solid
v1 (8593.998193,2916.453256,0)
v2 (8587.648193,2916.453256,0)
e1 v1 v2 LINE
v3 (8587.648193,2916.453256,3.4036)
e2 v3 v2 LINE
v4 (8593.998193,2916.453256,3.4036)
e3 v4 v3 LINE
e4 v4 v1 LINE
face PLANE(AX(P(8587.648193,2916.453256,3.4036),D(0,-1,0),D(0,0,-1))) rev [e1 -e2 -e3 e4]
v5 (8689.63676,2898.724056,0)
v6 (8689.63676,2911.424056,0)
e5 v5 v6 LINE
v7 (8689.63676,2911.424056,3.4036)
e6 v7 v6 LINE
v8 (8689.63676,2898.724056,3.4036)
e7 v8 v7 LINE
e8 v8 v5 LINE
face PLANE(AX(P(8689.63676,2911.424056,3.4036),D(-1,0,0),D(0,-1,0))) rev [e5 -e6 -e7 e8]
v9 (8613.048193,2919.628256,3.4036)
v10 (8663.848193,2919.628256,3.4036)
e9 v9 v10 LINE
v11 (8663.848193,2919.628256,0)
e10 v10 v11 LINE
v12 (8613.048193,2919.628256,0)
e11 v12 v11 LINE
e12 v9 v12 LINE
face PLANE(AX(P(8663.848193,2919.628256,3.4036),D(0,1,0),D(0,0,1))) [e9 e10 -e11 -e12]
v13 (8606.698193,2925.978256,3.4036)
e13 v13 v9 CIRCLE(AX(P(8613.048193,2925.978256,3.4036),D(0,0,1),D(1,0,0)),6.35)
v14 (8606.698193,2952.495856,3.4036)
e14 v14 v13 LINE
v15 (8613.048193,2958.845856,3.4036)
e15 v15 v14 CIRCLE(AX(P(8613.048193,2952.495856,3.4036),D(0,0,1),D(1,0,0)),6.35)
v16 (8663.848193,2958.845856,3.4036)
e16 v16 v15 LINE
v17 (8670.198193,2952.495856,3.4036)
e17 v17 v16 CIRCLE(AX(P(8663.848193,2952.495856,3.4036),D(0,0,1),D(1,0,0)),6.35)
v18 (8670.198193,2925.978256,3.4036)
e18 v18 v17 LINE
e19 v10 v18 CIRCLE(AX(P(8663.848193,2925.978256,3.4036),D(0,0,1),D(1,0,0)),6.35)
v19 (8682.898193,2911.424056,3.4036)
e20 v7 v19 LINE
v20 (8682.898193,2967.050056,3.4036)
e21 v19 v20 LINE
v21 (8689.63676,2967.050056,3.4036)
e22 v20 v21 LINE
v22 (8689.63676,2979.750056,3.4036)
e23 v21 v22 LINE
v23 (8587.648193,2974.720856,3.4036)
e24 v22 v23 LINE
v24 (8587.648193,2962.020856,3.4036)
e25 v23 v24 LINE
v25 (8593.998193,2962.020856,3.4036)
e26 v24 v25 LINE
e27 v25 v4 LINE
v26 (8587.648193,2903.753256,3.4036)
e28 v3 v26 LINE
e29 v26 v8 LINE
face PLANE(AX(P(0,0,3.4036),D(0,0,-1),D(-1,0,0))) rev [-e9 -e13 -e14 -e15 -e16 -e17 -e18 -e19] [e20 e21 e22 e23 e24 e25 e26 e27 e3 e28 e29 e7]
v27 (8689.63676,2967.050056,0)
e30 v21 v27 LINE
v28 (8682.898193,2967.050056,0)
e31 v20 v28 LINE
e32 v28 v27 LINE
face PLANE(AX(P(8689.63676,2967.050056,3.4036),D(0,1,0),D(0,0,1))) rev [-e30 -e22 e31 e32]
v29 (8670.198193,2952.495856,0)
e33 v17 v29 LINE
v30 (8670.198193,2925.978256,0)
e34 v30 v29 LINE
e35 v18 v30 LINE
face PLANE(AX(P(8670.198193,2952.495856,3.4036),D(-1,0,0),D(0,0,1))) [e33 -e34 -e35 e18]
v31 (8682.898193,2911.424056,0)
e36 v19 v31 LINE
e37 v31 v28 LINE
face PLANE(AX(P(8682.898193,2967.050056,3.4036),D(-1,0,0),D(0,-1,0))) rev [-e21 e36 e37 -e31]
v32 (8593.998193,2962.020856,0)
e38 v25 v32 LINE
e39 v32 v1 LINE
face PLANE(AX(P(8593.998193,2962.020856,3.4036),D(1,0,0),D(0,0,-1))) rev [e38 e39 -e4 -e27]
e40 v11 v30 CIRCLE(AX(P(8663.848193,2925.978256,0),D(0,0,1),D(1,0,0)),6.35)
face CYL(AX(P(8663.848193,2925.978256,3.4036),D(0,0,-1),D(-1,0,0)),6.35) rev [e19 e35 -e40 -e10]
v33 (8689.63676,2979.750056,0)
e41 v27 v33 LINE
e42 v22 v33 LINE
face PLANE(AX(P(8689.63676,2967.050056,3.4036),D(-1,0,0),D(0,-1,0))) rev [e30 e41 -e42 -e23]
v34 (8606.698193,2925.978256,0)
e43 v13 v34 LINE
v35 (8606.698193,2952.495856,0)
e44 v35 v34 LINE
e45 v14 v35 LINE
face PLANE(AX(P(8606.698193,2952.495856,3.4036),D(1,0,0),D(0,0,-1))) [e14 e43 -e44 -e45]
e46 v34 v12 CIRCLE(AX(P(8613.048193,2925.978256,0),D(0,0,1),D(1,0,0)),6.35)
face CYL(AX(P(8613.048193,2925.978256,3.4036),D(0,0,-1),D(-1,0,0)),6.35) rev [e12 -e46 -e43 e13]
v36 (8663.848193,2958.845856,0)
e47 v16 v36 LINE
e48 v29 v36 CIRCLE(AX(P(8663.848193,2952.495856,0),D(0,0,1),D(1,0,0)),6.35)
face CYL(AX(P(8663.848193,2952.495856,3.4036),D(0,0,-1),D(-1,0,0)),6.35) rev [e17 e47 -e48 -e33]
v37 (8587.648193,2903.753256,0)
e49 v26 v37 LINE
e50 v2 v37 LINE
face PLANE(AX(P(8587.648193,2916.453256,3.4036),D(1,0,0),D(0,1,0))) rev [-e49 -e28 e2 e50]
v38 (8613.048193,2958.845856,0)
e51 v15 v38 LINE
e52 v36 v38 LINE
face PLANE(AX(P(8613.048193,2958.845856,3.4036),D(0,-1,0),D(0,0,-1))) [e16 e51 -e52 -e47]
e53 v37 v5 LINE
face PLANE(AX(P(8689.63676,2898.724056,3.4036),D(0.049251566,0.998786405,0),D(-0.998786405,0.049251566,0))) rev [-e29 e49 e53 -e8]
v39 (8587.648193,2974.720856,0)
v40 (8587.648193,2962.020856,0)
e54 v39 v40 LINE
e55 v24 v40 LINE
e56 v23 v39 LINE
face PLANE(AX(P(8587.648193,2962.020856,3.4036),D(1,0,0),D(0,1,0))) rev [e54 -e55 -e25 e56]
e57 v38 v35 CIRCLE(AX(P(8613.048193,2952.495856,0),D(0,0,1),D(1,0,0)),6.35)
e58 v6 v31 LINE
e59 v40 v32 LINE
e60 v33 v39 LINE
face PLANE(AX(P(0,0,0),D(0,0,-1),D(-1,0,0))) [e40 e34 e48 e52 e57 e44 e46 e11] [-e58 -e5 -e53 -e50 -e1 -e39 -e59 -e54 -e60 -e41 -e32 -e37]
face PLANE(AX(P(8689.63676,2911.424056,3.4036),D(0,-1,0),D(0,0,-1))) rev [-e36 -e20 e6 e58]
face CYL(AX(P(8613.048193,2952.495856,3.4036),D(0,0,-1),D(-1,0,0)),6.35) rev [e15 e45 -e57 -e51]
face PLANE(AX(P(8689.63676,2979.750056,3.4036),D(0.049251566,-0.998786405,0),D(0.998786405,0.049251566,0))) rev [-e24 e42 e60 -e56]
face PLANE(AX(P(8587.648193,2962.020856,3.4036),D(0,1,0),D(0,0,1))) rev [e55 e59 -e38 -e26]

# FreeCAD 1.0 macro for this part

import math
import FreeCAD as App
import Part
import Sketcher

V = App.Vector
Q = App.Units.Quantity


def add_polygon(sketch, points):
    """Adds a closed chain of lines whose ends are joined by coincident constraints."""
    first, n = sketch.GeometryCount, len(points)
    for a, b in zip(points, points[1:] + points[:1]):
        sketch.addGeometry(Part.LineSegment(App.Vector(*a, 0), App.Vector(*b, 0)), False)
    for i in range(n):
        sketch.addConstraint(Sketcher.Constraint("Coincident", first + i, 2, first + (i + 1) % n, 1))

doc = App.newDocument("Part")
body = doc.addObject("PartDesign::Body", "Body")

sketch1 = body.newObject("Sketcher::SketchObject", "Sketch")
sketch1.AttachmentSupport = (doc.getObject("XY_Plane"), [""])
sketch1.MapMode = "FlatFace"
add_polygon(sketch1, [(8689.63676, 2979.750056), (8587.648193, 2974.720856), (8587.648193, 2962.020856), (8593.998193, 2962.020856), (8593.998193, 2916.453256), (8587.648193, 2916.453256), (8587.648193, 2903.753256), (8689.63676, 2898.724056), (8689.63676, 2911.424056), (8682.898193, 2911.424056), (8682.898193, 2967.050056), (8689.63676, 2967.050056)])
sketch1.addGeometry(Part.LineSegment(V(8606.698193, 2925.978256, 0), V(8606.698193, 2952.495856, 0)), False)
sketch1.addGeometry(Part.ArcOfCircle(Part.Circle(V(8613.048193, 2952.495856, 0), V(0, 0, 1), 6.35), math.radians(90), math.radians(180)), False)
sketch1.addGeometry(Part.LineSegment(V(8613.048193, 2958.845856, 0), V(8663.848193, 2958.845856, 0)), False)
sketch1.addGeometry(Part.ArcOfCircle(Part.Circle(V(8663.848193, 2952.495856, 0), V(0, 0, 1), 6.35), math.radians(0), math.radians(90)), False)
sketch1.addGeometry(Part.LineSegment(V(8670.198193, 2952.495856, 0), V(8670.198193, 2925.978256, 0)), False)
sketch1.addGeometry(Part.ArcOfCircle(Part.Circle(V(8663.848193, 2925.978256, 0), V(0, 0, 1), 6.35), math.radians(-90), math.radians(0)), False)
sketch1.addGeometry(Part.LineSegment(V(8663.848193, 2919.628256, 0), V(8613.048193, 2919.628256, 0)), False)
sketch1.addGeometry(Part.ArcOfCircle(Part.Circle(V(8613.048193, 2925.978256, 0), V(0, 0, 1), 6.35), math.radians(-180), math.radians(-90)), False)
sketch1.addConstraint(Sketcher.Constraint("Tangent", 12, 2, 13, 2))
sketch1.addConstraint(Sketcher.Constraint("Tangent", 13, 1, 14, 1))
sketch1.addConstraint(Sketcher.Constraint("Tangent", 14, 2, 15, 2))
sketch1.addConstraint(Sketcher.Constraint("Tangent", 15, 1, 16, 1))
sketch1.addConstraint(Sketcher.Constraint("Tangent", 16, 2, 17, 2))
sketch1.addConstraint(Sketcher.Constraint("Tangent", 17, 1, 18, 1))
sketch1.addConstraint(Sketcher.Constraint("Tangent", 18, 2, 19, 2))
sketch1.addConstraint(Sketcher.Constraint("Tangent", 19, 1, 12, 1))
sketch1.addConstraint(Sketcher.Constraint("Vertical", 1))
sketch1.addConstraint(Sketcher.Constraint("Horizontal", 2))
sketch1.addConstraint(Sketcher.Constraint("Vertical", 3))
sketch1.addConstraint(Sketcher.Constraint("Horizontal", 4))
sketch1.addConstraint(Sketcher.Constraint("Vertical", 5))
sketch1.addConstraint(Sketcher.Constraint("Vertical", 7))
sketch1.addConstraint(Sketcher.Constraint("Horizontal", 8))
sketch1.addConstraint(Sketcher.Constraint("Vertical", 9))
sketch1.addConstraint(Sketcher.Constraint("Horizontal", 10))
sketch1.addConstraint(Sketcher.Constraint("Vertical", 11))
sketch1.addConstraint(Sketcher.Constraint("Vertical", 12))
sketch1.addConstraint(Sketcher.Constraint("Horizontal", 14))
sketch1.addConstraint(Sketcher.Constraint("Vertical", 16))
sketch1.addConstraint(Sketcher.Constraint("Horizontal", 18))
sketch1.addConstraint(Sketcher.Constraint("Equal", 13, 15))
sketch1.addConstraint(Sketcher.Constraint("Equal", 15, 17))
sketch1.addConstraint(Sketcher.Constraint("Equal", 17, 19))
sketch1.addConstraint(Sketcher.Constraint("Vertical", 1, 2, 4, 2))
sketch1.addConstraint(Sketcher.Constraint("Vertical", 7, 2, 10, 2))
sketch1.addConstraint(Sketcher.Constraint("Equal", 1, 5))
sketch1.addConstraint(Sketcher.Constraint("Equal", 5, 7))
sketch1.addConstraint(Sketcher.Constraint("Equal", 7, 11))
sketch1.addConstraint(Sketcher.Constraint("Equal", 0, 6))
sketch1.addConstraint(Sketcher.Constraint("DistanceX", 14, 1, 14, 2, Q("2 in")))
sketch1.addConstraint(Sketcher.Constraint("Radius", 13, Q("0.25 in")))
sketch1.addConstraint(Sketcher.Constraint("DistanceY", 1, 2, 1, 1, Q("0.5 in")))
sketch1.addConstraint(Sketcher.Constraint("DistanceX", 0, 2, 13, 3, Q("1 in")))
sketch1.addConstraint(Sketcher.Constraint("DistanceX", 2, 1, 2, 2, Q("0.25 in")))
sketch1.addConstraint(Sketcher.Constraint("DistanceY", 9, 1, 9, 2, Q("2.19 in")))
sketch1.addConstraint(Sketcher.Constraint("DistanceX", 15, 1, 9, 2, Q("0.5 in")))
sketch1.addConstraint(Sketcher.Constraint("DistanceY", 3, 2, 3, 1, Q("1.794 in")))
sketch1.addConstraint(Sketcher.Constraint("DistanceY", 12, 1, 12, 2, Q("1.044 in")))
sketch1.addConstraint(Sketcher.Constraint("DistanceY", 13, 3, 0, 2, Q("0.875 in")))
sketch1.addConstraint(Sketcher.Constraint("Distance", 0, 102.11249))
sketch1.addConstraint(Sketcher.Constraint("DistanceX", -1, 1, 6, 2, 8689.63676))
sketch1.addConstraint(Sketcher.Constraint("DistanceY", -1, 1, 13, 3, 2952.495856))
pad1 = body.newObject("PartDesign::Pad", "Pad")
pad1.Profile = sketch1
pad1.Length = Q("0.134 in")

doc.recompute()
